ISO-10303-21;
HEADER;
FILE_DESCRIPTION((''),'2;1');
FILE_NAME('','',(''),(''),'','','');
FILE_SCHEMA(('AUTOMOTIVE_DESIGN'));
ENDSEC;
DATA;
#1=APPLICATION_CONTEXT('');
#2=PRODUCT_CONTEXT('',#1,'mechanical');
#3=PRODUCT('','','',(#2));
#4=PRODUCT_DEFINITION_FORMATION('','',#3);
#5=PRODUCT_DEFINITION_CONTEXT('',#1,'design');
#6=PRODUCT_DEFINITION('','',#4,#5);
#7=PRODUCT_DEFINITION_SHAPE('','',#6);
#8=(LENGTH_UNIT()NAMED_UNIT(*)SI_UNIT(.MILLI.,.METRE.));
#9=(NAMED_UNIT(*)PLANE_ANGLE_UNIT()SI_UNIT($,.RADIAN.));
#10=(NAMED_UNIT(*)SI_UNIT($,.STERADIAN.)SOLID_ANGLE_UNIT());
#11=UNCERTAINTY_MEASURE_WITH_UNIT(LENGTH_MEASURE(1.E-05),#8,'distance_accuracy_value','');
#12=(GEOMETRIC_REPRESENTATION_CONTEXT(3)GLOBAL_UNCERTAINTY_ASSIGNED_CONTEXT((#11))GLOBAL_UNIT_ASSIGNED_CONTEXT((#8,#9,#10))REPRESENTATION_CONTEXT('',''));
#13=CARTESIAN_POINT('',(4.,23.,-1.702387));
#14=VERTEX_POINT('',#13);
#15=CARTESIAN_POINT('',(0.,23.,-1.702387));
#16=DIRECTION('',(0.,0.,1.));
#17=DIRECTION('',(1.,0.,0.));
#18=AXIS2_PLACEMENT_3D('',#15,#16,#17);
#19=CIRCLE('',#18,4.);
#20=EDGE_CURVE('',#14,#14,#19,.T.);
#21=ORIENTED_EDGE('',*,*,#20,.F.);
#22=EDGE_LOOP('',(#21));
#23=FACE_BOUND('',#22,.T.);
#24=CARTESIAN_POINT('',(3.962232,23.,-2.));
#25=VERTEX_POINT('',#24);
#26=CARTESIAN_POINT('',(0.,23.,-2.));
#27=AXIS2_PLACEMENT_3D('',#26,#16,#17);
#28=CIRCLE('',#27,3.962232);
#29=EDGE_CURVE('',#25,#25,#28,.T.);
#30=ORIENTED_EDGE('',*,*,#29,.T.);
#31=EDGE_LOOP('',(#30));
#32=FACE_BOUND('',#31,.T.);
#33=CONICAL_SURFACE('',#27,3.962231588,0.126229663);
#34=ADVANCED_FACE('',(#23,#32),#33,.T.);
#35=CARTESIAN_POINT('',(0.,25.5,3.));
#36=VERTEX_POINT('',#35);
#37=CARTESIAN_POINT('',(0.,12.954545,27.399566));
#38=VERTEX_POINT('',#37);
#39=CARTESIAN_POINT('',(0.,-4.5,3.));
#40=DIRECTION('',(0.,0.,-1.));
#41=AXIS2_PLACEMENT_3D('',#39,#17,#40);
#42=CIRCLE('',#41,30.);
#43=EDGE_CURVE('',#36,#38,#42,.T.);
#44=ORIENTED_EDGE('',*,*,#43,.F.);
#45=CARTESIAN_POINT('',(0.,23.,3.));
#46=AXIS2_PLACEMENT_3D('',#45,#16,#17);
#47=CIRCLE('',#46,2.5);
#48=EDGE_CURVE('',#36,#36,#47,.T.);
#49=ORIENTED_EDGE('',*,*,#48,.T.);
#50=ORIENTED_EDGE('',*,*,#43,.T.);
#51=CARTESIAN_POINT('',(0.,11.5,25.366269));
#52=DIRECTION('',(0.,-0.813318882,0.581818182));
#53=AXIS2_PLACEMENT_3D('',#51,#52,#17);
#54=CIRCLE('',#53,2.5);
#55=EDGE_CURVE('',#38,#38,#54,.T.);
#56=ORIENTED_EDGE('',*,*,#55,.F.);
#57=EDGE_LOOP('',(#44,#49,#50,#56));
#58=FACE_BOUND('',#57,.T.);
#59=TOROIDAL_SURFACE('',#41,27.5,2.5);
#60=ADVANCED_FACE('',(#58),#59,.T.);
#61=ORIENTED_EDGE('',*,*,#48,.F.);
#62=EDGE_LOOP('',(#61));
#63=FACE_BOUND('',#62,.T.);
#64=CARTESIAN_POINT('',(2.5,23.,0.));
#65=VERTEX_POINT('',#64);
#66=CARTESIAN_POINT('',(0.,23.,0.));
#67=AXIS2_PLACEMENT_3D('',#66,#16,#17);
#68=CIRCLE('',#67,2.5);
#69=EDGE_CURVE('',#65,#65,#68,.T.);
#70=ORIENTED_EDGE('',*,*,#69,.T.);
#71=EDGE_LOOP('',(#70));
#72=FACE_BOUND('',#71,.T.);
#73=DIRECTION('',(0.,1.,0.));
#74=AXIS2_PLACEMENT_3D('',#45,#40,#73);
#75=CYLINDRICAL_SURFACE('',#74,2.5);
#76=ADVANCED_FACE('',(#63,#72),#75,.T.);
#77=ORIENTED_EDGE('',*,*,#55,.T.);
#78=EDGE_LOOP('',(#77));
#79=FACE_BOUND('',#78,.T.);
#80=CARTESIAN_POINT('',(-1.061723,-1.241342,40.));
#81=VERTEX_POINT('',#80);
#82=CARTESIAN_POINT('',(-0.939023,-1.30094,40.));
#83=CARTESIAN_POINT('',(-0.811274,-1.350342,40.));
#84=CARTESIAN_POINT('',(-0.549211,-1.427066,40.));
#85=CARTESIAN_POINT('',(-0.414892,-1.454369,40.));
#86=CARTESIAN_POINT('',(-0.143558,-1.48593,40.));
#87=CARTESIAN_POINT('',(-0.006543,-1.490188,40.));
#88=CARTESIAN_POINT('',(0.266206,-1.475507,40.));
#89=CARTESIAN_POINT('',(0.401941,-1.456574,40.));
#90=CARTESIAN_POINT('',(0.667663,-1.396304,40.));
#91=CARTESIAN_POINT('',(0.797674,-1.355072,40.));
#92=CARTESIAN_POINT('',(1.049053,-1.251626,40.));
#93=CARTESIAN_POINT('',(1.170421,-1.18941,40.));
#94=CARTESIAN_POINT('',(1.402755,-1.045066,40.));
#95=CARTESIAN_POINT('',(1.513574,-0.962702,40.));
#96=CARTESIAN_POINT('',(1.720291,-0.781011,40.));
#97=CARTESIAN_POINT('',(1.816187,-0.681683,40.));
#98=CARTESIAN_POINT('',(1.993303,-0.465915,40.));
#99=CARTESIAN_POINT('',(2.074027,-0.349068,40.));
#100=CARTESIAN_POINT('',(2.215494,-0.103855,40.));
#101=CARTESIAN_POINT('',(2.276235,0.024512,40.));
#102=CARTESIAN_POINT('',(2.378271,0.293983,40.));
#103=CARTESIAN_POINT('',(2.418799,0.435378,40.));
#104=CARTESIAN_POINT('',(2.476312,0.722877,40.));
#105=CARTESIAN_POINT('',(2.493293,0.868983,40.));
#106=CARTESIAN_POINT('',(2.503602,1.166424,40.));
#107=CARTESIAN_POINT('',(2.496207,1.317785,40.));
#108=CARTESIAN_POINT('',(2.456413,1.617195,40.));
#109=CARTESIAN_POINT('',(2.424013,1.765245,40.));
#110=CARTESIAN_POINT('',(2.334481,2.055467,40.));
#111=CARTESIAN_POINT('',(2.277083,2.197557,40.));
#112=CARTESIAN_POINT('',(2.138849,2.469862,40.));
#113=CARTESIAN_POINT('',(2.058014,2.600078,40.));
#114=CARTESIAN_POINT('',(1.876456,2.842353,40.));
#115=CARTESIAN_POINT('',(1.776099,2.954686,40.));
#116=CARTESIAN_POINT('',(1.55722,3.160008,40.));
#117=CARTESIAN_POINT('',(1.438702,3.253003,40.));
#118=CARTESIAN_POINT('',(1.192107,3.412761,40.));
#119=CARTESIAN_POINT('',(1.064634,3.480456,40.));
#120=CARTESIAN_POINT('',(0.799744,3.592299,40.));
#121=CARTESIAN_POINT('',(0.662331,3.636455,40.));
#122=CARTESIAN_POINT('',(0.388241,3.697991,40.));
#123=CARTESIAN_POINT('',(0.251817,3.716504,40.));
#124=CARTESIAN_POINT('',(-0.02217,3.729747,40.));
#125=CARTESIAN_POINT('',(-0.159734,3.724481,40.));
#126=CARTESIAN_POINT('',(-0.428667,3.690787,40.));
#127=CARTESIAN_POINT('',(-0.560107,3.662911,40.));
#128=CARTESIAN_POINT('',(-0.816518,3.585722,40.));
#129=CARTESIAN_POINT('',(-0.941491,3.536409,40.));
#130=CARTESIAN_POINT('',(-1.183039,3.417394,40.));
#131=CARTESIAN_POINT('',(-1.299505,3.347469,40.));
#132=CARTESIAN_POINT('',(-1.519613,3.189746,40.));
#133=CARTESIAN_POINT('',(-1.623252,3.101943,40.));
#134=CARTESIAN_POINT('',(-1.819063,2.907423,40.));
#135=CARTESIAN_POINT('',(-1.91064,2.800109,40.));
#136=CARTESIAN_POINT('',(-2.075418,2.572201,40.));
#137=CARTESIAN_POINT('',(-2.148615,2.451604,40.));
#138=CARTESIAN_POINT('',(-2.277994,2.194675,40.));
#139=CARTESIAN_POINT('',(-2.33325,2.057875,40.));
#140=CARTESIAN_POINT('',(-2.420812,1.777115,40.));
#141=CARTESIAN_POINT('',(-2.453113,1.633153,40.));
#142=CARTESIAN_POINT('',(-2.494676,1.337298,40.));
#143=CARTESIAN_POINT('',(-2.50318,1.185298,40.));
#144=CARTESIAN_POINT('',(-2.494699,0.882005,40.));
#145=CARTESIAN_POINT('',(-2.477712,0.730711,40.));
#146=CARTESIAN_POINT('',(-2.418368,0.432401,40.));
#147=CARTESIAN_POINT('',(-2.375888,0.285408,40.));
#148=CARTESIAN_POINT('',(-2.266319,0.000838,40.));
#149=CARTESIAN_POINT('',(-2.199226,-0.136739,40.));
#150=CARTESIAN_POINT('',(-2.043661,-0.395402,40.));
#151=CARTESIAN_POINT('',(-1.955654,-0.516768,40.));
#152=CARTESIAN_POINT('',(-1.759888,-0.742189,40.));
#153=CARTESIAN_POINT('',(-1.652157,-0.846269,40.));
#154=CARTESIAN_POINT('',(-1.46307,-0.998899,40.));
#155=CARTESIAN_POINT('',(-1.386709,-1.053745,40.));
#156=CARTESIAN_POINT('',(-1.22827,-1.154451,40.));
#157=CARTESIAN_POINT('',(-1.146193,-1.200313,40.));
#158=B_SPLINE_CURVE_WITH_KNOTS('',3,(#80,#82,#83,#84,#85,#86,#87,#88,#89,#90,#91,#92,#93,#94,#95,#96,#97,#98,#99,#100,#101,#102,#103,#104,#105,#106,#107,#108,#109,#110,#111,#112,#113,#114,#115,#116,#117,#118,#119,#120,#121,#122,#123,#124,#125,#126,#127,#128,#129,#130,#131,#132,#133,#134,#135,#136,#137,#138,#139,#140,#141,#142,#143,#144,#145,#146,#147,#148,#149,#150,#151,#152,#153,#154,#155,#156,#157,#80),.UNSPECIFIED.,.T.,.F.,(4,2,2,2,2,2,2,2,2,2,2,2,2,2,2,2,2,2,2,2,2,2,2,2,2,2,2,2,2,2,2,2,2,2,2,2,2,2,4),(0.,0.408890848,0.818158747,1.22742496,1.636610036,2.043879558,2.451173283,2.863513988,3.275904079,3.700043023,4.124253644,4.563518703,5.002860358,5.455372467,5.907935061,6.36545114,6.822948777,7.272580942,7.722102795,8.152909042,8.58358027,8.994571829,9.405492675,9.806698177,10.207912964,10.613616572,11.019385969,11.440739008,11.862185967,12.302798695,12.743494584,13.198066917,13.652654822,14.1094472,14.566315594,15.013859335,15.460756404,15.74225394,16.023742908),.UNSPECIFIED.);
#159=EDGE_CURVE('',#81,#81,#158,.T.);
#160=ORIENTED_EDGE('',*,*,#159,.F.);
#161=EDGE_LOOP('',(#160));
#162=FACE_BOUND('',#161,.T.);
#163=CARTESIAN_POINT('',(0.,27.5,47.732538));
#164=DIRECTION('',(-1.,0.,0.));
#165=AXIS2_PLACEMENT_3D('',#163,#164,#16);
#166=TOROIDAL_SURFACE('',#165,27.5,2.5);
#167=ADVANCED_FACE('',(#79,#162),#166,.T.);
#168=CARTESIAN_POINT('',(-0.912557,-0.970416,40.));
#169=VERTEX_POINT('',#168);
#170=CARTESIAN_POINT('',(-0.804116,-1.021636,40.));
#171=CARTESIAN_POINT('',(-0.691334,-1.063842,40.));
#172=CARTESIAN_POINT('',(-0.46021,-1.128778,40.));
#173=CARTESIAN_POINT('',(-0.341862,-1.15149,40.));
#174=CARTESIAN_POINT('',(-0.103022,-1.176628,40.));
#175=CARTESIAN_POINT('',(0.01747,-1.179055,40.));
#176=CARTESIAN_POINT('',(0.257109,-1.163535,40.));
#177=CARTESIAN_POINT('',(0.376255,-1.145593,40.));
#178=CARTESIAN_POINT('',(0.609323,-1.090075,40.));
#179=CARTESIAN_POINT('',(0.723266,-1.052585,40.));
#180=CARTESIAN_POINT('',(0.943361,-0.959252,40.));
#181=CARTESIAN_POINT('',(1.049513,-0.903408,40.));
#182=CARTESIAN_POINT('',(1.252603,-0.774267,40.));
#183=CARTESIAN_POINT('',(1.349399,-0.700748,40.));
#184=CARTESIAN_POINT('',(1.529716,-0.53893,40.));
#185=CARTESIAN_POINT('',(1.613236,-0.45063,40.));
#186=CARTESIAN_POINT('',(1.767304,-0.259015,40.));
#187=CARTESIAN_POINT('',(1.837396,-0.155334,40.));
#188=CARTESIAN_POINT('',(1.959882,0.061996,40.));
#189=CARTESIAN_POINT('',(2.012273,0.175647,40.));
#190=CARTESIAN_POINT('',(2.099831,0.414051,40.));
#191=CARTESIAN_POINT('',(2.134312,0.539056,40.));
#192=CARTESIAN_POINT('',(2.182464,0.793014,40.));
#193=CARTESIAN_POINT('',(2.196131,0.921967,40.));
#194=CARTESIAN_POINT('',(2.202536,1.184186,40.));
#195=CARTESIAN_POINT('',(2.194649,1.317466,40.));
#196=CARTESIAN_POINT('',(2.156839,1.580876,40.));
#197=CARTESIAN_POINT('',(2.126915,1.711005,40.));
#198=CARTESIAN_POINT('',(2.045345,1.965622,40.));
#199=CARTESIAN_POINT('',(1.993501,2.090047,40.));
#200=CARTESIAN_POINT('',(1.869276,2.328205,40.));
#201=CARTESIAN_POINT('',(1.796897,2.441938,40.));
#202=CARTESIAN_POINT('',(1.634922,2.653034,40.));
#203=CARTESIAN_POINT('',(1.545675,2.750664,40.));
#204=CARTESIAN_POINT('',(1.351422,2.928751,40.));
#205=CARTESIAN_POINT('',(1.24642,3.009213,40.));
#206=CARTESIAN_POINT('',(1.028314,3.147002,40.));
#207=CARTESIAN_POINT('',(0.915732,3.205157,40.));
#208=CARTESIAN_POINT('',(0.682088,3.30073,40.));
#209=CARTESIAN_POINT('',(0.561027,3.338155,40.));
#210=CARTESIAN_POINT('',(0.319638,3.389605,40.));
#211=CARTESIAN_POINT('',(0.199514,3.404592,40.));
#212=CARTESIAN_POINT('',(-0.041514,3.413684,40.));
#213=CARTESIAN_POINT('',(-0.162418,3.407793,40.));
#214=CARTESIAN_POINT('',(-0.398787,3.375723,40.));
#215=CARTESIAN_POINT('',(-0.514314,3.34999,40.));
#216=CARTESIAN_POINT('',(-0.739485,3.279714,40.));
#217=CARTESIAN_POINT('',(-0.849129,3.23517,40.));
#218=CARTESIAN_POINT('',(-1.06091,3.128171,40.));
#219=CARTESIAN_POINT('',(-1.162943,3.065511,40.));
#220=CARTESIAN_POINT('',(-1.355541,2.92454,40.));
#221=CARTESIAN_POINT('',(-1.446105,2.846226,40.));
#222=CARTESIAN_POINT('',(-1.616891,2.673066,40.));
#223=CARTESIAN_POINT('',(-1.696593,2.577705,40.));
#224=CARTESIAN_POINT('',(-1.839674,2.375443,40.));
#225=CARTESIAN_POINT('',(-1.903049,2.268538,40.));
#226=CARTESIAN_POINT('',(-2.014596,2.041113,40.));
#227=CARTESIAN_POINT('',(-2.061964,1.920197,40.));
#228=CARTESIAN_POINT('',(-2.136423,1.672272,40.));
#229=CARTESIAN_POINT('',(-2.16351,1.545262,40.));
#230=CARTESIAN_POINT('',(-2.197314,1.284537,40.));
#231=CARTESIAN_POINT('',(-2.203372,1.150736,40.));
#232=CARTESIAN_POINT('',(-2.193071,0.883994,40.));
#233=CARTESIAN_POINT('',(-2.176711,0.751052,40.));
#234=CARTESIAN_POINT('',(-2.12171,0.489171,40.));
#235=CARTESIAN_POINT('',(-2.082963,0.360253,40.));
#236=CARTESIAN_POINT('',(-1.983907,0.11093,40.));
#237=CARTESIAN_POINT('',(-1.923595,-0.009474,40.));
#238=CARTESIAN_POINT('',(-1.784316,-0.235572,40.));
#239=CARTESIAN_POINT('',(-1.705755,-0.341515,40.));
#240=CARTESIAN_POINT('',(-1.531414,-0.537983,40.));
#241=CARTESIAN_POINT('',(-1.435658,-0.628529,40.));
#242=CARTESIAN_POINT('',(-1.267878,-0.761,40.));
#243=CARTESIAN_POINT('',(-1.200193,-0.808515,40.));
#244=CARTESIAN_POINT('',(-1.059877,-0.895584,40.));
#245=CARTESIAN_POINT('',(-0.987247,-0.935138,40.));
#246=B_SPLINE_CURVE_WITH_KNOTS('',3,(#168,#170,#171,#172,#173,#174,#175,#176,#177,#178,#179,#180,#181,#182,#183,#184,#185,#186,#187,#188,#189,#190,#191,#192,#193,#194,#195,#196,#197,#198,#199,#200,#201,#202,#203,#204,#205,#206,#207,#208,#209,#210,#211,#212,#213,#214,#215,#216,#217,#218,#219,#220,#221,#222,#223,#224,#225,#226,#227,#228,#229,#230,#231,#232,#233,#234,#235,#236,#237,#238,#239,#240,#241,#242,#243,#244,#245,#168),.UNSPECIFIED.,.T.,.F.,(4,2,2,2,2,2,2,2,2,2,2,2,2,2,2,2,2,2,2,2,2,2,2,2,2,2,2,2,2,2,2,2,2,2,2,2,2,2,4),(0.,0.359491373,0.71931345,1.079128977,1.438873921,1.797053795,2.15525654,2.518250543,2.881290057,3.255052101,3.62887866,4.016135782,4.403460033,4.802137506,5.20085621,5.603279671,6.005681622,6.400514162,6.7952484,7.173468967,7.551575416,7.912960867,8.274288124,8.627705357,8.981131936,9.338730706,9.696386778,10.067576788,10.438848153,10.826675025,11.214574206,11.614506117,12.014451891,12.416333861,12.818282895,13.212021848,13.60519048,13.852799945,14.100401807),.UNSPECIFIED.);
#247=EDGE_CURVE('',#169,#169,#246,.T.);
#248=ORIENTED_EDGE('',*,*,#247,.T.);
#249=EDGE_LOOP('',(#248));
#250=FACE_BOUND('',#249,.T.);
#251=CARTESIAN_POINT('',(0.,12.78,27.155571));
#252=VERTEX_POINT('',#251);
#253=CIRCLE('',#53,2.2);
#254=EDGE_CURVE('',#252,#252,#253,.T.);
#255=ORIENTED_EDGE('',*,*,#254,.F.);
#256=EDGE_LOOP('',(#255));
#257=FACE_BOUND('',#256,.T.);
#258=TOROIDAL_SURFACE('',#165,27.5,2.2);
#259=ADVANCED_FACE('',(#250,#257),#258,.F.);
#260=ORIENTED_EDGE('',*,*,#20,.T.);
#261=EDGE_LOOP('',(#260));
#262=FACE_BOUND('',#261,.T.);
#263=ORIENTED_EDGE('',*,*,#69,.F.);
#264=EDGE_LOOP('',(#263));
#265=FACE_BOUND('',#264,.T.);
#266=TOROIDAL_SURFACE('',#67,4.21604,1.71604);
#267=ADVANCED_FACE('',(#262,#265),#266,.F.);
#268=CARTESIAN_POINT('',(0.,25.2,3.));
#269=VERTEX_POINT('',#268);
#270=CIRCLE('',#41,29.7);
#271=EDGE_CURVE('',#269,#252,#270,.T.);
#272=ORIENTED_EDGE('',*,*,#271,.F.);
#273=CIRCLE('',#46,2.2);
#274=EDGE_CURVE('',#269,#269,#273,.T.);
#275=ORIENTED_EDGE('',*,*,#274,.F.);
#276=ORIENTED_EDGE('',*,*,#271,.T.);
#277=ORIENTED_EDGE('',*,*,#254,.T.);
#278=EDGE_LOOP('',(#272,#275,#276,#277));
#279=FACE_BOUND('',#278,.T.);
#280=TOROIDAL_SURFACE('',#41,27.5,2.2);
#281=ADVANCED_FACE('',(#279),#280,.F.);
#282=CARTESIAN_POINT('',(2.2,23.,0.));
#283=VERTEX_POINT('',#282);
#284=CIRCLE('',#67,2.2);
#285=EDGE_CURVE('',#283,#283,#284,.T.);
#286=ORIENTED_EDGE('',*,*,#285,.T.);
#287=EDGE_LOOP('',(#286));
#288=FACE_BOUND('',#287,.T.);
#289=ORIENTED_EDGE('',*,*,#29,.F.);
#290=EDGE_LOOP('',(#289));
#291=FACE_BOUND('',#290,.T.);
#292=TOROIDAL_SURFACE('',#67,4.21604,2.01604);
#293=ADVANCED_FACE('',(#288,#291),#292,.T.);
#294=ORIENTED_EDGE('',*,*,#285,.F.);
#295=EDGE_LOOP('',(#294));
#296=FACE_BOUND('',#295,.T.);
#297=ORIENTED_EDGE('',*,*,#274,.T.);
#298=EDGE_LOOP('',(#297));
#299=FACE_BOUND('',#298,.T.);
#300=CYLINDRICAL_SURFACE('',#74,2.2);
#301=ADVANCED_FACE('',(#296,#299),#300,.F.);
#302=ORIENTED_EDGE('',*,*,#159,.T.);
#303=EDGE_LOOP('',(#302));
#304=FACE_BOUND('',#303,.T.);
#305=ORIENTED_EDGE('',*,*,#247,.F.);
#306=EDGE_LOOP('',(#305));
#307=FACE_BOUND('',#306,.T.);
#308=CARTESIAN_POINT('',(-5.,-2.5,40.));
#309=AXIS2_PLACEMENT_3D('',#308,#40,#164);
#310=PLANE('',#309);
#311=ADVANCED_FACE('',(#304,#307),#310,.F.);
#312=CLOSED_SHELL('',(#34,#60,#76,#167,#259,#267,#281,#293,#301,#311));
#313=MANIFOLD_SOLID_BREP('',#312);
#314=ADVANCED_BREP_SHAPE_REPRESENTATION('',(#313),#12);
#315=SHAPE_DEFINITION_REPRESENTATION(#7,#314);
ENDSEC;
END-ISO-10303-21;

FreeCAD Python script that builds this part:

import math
import FreeCAD as App
import Part
import Sketcher
from FreeCAD import Vector
Q = App.Units.Quantity


def add_polygon(sketch, points):
    """Adds a closed chain of lines whose ends are joined by coincident constraints."""
    first, n = sketch.GeometryCount, len(points)
    for a, b in zip(points, points[1:] + points[:1]):
        sketch.addGeometry(Part.LineSegment(App.Vector(*a, 0), App.Vector(*b, 0)), False)
    for i in range(n):
        sketch.addConstraint(Sketcher.Constraint("Coincident", first + i, 2, first + (i + 1) % n, 1))

doc = App.newDocument("Part")
body = doc.addObject("PartDesign::Body", "Body")

sketch1 = body.newObject("Sketcher::SketchObject", "Sketch")
sketch1.AttachmentSupport = (doc.getObject("XY_Plane"), [""])
sketch1.MapMode = "FlatFace"
sketch1.addGeometry([
    Part.Circle(Vector(0, 23, 0), Vector(0, 0, 1), 2.5),
    Part.Circle(Vector(0, 23, 0), Vector(0, 0, 1), 2.2),
], False)
sketch1.addConstraint([
    Sketcher.Constraint("Coincident", 1, 3, 0, 3),
    Sketcher.Constraint("PointOnObject", 0, 3, -2),
    Sketcher.Constraint("Diameter", 0, Q("5 mm")),
    Sketcher.Constraint("Diameter", 1, Q("4.4 mm")),
    Sketcher.Constraint("DistanceY", -1, 1, 0, 3, Q("23 mm")),
])

sketch2 = body.newObject("Sketcher::SketchObject", "Sketch001")
sketch2.AttachmentSupport = (doc.getObject("YZ_Plane"), [""])
sketch2.MapMode = "FlatFace"
sketch2.addGeometry([
    Part.LineSegment(Vector(23, 0, 0), Vector(23, 3, 0)),
    Part.ArcOfCircle(Part.Circle(Vector(-4.5, 3, 0), Vector(0, 0, 1), 27.5), math.radians(0), math.radians(54)),
    Part.ArcOfCircle(Part.Circle(Vector(27.5, 47.7, 0), Vector(0, 0, 1), 27.5), math.radians(-164), math.radians(-126)),
    Part.ArcOfCircle(Part.Circle(Vector(27.5, 47.7, 0), Vector(0, 0, 1), 27.5), math.radians(180), math.radians(196.33)),
], False)
sketch2.addConstraint([
    Sketcher.Constraint("Tangent", 0, 2, 1, 1),
    Sketcher.Constraint("Tangent", 1, 2, 2, 2),
    Sketcher.Constraint("Tangent", 2, 1, 3, 2),
    Sketcher.Constraint("Vertical", 0),
    Sketcher.Constraint("Equal", 1, 2),
    Sketcher.Constraint("Equal", 2, 3),
    Sketcher.Constraint("PointOnObject", 0, 1, -1),
    Sketcher.Constraint("PointOnObject", 3, 1, -2),
    Sketcher.Constraint("Horizontal", 2, 3, 3, 1),
    Sketcher.Constraint("Radius", 1, Q("27.5 mm")),
    Sketcher.Constraint("DistanceY", 0, 1, 0, 2, Q("3 mm")),
    Sketcher.Constraint("DistanceX", -1, 1, 0, 1, Q("23 mm")),
    Sketcher.Constraint("DistanceY", -1, 1, 2, 1, Q("40 mm")),
])
doc.recompute()

additivepipe = body.newObject("PartDesign::AdditivePipe", "AdditivePipe")
additivepipe.Profile = sketch1
additivepipe.Spine = (sketch2, ["Edge1", "Edge2", "Edge3", "Edge4"])

sketch3 = body.newObject("Sketcher::SketchObject", "Sketch002")
sketch3.AttachmentSupport = (doc.getObject("YZ_Plane"), [""])
sketch3.MapMode = "FlatFace"
add_polygon(sketch3, [(4, 48), (-2, 48), (-2, 40), (4, 40)])
sketch3.addConstraint([
    Sketcher.Constraint("Horizontal", 0),
    Sketcher.Constraint("Vertical", 1),
    Sketcher.Constraint("Horizontal", 2),
    Sketcher.Constraint("Vertical", 3),
    Sketcher.Constraint("DistanceX", 0, 2, 0, 1, Q("7 mm")),
    Sketcher.Constraint("DistanceY", -1, 1, 1, 2, Q("40 mm")),
    Sketcher.Constraint("DistanceX", 0, 2, -1, 1, Q("2.5 mm")),
    Sketcher.Constraint("DistanceY", 1, 2, 1, 1, Q("7.732538 mm")),
])
pocket1 = body.newObject("PartDesign::Pocket", "Pocket")
pocket1.Profile = sketch3
pocket1.Length = 10
pocket1.Midplane = True

sketch4 = body.newObject("Sketcher::SketchObject", "Sketch003")
sketch4.AttachmentSupport = (doc.getObject("YZ_Plane"), [""])
sketch4.MapMode = "FlatFace"
sketch4.addGeometry([
    Part.LineSegment(Vector(25.5, 0, 0), Vector(25.2, 0, 0)),
    Part.ArcOfCircle(Part.Circle(Vector(27.22, 0, 0), Vector(0, 0, 1), 2.02), math.radians(180), math.radians(263)),
    Part.LineSegment(Vector(26.96, -2, 0), Vector(27, -1.7, 0)),
    Part.ArcOfCircle(Part.Circle(Vector(27.22, 0, 0), Vector(0, 0, 1), 1.72), math.radians(180), math.radians(263)),
], False)
sketch4.addGeometry(Part.LineSegment(Vector(23, 0, 0), Vector(23, -2, 0)), True)
sketch4.addConstraint([
    Sketcher.Constraint("Coincident", 0, 2, 1, 1),
    Sketcher.Constraint("Coincident", 1, 2, 2, 1),
    Sketcher.Constraint("Coincident", 2, 2, 3, 2),
    Sketcher.Constraint("Coincident", 3, 1, 0, 1),
    Sketcher.Constraint("Horizontal", 0),
    Sketcher.Constraint("Vertical", 4),
    Sketcher.Constraint("Coincident", 3, 3, 1, 3),
    Sketcher.Constraint("PointOnObject", 1, 3, -1),
    Sketcher.Constraint("PointOnObject", 0, 2, -1),
    Sketcher.Constraint("PointOnObject", 4, 1, -1),
    Sketcher.Constraint("Horizontal", 1, 2, 4, 2),
    Sketcher.Constraint("DistanceY", 4, 2, 4, 1, Q("2 mm")),
    Sketcher.Constraint("DistanceX", 0, 2, 0, 1, Q("0.3 mm")),
    Sketcher.Constraint("DistanceX", -1, 1, 2, 2, Q("27 mm")),
    Sketcher.Constraint("DistanceX", -1, 1, 4, 1, Q("23 mm")),
    Sketcher.Constraint("DistanceX", -1, 1, 0, 2, Q("25.2 mm")),
    Sketcher.Constraint("Radius", 1, Q("2.01604 mm")),
])
revolution = body.newObject("PartDesign::Revolution", "Revolution")
revolution.Profile = sketch4
revolution.ReferenceAxis = (sketch4, ["Axis0"])
revolution.Angle = 360

doc.recompute()
